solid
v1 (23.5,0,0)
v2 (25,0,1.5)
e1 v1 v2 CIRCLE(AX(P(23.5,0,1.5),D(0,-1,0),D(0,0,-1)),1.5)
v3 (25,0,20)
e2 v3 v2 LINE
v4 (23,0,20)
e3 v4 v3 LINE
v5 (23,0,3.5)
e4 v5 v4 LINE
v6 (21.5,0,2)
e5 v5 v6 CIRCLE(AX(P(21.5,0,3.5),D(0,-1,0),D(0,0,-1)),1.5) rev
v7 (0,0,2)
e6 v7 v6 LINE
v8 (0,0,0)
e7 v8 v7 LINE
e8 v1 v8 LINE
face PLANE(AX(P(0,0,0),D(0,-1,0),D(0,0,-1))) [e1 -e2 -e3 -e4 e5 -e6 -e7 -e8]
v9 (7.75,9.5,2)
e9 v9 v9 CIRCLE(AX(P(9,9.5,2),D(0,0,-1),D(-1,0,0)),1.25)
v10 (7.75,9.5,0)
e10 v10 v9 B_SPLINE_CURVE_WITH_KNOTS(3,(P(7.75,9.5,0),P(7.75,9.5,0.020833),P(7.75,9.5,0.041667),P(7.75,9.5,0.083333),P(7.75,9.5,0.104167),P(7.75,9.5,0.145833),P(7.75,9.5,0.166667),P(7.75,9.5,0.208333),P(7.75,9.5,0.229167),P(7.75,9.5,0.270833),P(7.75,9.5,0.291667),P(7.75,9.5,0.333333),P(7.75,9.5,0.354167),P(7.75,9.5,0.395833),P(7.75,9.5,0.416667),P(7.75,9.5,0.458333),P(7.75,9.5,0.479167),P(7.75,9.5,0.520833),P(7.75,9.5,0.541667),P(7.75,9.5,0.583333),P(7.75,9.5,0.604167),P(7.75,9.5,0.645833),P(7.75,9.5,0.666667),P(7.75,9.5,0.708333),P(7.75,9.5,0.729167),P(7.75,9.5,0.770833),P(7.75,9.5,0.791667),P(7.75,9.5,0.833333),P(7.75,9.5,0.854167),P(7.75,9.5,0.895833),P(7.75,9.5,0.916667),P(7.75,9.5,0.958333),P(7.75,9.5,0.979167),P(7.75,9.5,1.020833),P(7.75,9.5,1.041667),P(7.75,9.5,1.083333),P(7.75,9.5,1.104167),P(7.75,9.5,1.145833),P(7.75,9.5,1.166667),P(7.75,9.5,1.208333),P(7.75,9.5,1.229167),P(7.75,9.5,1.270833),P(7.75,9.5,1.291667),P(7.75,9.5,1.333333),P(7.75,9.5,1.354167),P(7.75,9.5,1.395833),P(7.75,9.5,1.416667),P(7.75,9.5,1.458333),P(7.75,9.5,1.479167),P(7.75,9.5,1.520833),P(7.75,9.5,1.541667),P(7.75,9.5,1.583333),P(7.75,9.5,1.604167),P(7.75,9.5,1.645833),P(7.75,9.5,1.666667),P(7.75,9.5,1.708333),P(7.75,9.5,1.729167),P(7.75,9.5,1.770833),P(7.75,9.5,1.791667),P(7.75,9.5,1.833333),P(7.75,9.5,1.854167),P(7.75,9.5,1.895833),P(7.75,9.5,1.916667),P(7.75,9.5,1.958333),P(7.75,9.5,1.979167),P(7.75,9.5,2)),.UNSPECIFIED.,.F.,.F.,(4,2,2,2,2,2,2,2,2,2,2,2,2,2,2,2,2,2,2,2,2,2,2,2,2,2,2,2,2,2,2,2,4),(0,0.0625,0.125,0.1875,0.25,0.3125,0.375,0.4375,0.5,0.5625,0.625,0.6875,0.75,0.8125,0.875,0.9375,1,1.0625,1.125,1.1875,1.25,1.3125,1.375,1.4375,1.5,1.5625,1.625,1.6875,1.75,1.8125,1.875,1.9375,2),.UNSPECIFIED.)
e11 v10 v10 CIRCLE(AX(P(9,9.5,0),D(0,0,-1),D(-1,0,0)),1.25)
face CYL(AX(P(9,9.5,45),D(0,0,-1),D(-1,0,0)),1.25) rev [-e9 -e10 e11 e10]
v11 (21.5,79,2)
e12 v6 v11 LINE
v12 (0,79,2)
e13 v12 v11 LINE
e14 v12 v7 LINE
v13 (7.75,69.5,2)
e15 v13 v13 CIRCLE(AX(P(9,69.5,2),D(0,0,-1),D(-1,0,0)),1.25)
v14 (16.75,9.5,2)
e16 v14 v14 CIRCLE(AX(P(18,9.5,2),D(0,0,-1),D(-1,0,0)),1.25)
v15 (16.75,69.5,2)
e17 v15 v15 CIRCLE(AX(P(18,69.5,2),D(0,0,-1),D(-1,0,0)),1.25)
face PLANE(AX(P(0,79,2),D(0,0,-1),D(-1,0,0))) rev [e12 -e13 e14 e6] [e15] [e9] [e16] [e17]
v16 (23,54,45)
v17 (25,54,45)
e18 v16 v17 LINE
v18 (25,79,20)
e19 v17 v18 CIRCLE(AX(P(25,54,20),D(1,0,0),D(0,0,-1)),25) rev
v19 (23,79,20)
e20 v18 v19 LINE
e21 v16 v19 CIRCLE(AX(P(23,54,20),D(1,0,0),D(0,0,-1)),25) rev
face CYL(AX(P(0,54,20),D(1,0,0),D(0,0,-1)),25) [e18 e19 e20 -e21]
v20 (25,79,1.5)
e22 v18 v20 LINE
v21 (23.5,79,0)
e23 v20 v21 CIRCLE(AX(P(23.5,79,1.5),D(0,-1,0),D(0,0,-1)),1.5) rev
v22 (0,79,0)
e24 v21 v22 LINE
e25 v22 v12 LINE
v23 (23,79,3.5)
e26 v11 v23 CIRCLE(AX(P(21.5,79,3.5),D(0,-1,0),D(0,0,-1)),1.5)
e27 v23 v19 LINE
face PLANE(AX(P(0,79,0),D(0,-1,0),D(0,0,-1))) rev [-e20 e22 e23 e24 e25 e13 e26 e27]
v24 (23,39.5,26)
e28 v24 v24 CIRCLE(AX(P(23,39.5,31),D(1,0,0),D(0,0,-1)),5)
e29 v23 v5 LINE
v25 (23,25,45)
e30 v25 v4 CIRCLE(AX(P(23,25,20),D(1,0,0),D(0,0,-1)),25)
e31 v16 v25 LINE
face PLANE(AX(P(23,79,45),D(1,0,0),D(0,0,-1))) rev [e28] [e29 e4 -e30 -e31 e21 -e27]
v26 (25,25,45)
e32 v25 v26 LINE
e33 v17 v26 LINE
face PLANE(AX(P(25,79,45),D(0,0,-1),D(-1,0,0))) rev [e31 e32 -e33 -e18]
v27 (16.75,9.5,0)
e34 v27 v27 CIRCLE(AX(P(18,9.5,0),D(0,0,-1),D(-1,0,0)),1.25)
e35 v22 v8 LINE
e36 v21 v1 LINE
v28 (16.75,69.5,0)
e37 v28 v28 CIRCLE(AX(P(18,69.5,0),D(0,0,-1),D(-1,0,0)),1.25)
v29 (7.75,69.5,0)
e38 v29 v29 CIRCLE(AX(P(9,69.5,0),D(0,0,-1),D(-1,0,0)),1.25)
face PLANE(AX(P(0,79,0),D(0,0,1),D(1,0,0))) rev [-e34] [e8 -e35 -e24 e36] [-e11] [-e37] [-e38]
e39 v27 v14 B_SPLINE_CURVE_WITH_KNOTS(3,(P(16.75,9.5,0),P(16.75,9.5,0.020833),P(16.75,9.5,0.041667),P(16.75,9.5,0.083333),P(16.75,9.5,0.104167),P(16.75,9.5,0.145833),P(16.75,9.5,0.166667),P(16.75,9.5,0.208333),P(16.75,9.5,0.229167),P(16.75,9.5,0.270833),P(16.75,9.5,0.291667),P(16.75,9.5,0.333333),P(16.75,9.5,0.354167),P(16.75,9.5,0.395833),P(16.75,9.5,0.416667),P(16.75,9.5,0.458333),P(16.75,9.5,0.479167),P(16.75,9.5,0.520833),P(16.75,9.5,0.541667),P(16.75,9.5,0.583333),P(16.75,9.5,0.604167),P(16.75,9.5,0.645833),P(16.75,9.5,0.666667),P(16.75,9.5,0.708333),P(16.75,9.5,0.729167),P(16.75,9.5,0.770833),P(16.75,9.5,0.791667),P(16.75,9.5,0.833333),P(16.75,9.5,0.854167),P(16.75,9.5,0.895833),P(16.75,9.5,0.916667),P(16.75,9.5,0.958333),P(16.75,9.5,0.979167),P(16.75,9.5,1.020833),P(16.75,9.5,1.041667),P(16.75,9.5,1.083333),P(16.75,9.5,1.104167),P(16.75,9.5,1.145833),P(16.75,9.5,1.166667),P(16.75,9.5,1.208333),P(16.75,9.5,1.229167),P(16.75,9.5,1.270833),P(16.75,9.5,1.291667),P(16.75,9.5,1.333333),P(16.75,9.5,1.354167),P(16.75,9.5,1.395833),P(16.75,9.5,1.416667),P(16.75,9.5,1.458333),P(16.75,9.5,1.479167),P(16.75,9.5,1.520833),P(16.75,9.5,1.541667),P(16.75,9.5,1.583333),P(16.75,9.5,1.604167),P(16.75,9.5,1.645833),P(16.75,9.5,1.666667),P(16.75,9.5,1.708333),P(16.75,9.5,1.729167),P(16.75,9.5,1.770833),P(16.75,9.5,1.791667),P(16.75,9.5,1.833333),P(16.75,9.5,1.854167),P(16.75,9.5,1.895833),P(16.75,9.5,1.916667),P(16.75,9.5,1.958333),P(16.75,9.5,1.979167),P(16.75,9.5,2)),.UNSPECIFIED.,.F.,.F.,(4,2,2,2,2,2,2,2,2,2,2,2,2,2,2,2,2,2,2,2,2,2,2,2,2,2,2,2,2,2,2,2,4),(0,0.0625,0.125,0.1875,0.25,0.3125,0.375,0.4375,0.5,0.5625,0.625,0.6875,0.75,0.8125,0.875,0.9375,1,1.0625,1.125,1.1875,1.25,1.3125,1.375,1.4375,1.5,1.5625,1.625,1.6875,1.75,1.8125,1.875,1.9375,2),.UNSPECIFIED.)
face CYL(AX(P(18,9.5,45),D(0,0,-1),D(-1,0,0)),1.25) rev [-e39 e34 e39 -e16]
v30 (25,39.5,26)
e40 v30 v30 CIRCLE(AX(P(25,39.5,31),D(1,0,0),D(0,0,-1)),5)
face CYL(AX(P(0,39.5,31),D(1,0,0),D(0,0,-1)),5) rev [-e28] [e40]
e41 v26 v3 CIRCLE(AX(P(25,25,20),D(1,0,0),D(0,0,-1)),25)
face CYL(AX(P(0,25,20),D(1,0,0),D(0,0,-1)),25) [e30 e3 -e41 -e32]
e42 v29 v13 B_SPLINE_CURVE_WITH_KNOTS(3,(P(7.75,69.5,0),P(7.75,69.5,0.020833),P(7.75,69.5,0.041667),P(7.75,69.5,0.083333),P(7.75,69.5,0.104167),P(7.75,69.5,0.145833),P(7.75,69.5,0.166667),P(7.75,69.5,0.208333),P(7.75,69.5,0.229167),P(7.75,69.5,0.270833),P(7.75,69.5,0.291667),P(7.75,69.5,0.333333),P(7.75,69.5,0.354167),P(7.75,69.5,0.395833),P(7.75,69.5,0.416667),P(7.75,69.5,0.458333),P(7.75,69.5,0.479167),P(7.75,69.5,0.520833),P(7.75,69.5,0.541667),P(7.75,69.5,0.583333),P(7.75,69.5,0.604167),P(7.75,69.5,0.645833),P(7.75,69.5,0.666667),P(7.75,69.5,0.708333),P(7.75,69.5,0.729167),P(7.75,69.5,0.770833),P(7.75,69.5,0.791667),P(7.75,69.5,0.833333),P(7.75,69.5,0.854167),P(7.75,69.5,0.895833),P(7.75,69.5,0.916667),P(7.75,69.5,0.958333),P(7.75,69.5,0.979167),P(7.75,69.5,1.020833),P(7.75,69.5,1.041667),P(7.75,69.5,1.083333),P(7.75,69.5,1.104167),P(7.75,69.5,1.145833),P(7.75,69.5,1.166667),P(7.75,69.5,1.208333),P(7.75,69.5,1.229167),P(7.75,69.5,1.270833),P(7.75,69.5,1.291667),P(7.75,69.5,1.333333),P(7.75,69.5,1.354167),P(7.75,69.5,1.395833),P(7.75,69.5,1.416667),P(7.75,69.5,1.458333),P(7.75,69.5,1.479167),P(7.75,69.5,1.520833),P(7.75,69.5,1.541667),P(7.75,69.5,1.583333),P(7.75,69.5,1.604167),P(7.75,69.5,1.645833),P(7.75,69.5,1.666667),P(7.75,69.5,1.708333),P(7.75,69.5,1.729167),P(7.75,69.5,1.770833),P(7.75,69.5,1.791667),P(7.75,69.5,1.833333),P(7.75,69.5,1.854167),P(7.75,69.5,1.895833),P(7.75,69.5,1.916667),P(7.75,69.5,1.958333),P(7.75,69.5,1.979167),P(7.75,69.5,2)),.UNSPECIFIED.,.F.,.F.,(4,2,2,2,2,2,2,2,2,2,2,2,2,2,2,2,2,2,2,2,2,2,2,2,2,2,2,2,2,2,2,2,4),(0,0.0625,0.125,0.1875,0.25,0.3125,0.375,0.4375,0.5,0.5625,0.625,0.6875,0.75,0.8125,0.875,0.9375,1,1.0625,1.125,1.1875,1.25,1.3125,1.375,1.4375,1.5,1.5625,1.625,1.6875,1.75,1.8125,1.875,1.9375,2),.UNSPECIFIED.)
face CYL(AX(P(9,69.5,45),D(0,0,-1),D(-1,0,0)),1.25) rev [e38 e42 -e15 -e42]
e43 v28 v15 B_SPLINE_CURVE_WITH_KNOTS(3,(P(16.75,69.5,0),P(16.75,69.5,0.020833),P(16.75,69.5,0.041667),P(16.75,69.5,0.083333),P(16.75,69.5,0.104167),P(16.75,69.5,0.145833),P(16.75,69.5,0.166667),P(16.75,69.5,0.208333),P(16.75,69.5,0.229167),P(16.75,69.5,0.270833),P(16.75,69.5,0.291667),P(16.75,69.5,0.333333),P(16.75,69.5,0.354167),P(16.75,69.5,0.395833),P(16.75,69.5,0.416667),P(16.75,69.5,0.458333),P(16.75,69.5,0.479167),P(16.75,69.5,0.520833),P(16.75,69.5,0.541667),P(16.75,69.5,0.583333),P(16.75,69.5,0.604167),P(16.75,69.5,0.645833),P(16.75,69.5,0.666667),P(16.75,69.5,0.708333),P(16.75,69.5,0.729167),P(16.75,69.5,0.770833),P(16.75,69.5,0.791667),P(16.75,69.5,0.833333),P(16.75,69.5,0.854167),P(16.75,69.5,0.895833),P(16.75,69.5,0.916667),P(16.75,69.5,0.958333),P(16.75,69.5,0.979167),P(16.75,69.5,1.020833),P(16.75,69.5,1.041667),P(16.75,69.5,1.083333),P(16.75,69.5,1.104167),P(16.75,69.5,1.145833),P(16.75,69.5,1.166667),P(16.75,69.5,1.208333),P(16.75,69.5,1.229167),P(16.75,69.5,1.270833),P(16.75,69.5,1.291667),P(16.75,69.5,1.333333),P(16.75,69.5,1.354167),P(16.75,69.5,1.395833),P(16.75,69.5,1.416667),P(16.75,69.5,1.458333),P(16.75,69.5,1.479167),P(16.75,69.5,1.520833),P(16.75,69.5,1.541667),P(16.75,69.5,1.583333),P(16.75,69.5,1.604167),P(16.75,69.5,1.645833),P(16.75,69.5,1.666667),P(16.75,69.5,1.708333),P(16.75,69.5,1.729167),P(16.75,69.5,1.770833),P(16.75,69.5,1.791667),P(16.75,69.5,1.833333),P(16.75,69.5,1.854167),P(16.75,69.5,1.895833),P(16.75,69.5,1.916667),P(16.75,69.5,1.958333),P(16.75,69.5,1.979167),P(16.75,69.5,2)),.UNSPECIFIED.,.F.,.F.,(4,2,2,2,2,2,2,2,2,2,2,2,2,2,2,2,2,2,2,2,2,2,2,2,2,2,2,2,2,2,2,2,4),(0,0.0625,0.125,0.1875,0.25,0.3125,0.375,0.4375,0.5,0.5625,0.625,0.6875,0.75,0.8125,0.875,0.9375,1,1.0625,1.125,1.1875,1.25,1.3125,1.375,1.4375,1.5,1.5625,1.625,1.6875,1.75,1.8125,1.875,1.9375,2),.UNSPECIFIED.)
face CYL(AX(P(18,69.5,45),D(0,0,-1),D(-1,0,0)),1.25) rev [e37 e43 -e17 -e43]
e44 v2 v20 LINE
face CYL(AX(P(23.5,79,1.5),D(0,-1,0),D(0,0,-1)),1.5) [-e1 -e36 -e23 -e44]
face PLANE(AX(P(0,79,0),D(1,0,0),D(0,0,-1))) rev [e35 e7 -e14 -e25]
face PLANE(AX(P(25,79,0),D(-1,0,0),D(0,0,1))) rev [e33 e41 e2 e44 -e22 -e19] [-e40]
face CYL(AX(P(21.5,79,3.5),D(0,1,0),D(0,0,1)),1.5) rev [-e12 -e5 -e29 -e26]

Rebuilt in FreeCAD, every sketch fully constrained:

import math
import FreeCAD as App
import Part
import Sketcher

V = App.Vector


def edges_at(feature, points):
    """Names of the edges that pass closest to the given points."""
    edges = feature.Shape.Edges
    near = lambda p: min(range(len(edges)), key=lambda i: edges[i].distToShape(Part.Vertex(*p))[0])
    return sorted({f"Edge{near(p) + 1}" for p in points})


def add_polygon(sketch, points):
    """Adds a closed chain of lines whose ends are joined by coincident constraints."""
    first, n = sketch.GeometryCount, len(points)
    for a, b in zip(points, points[1:] + points[:1]):
        sketch.addGeometry(Part.LineSegment(App.Vector(*a, 0), App.Vector(*b, 0)), False)
    for i in range(n):
        sketch.addConstraint(Sketcher.Constraint("Coincident", first + i, 2, first + (i + 1) % n, 1))

doc = App.newDocument("Part")
body = doc.addObject("PartDesign::Body", "Body")

sketch1 = body.newObject("Sketcher::SketchObject", "Sketch")
sketch1.AttachmentSupport = (doc.getObject("XZ_Plane"), [""])
sketch1.MapMode = "FlatFace"
add_polygon(sketch1, [(0, 0), (0, 2), (23, 2), (23, 45), (25, 45), (25, 0)])
sketch1.addConstraint([
    Sketcher.Constraint("Vertical", 0),
    Sketcher.Constraint("Horizontal", 1),
    Sketcher.Constraint("Vertical", 2),
    Sketcher.Constraint("Horizontal", 3),
    Sketcher.Constraint("Vertical", 4),
    Sketcher.Constraint("Horizontal", 5),
    Sketcher.Constraint("Coincident", 5, 2, -1, 1),
    Sketcher.Constraint("Equal", 3, 0),
    Sketcher.Constraint("DistanceX", 1, 1, 1, 2, 23.0),
    Sketcher.Constraint("DistanceX", 3, 1, 3, 2, 2.0),
    Sketcher.Constraint("DistanceY", 2, 1, 2, 2, 43.0),
])
pad1 = body.newObject("PartDesign::Pad", "Pad")
pad1.Profile = sketch1
pad1.Length = 79
pad1.Reversed = True

sketch2 = body.newObject("Sketcher::SketchObject", "Sketch001")
sketch2.AttachmentSupport = (doc.getObject("YZ_Plane"), [""])
sketch2.MapMode = "FlatFace"
sketch2.AttachmentOffset = App.Placement(V(0, 0, 25), App.Rotation())
sketch2.addGeometry(Part.Circle(V(40, 31, 0), V(0, 0, 1), 5), False)
sketch2.addConstraint([
    Sketcher.Constraint("Diameter", 0, 10.0),
    Sketcher.Constraint("DistanceY", -1, 1, 0, 3, 31.0),
    Sketcher.Constraint("DistanceX", -1, 1, 0, 3, 39.5),
])
pocket1 = body.newObject("PartDesign::Pocket", "Pocket")
pocket1.Profile = sketch2
pocket1.Type = "ThroughAll"

sketch3 = body.newObject("Sketcher::SketchObject", "Sketch002")
sketch3.AttachmentSupport = (doc.getObject("YZ_Plane"), [""])
sketch3.MapMode = "FlatFace"
sketch3.AttachmentOffset = App.Placement(V(0, 0, 25), App.Rotation())
sketch3.addGeometry([
    Part.LineSegment(V(54, 56, 0), V(54, 45, 0)),
    Part.ArcOfCircle(Part.Circle(V(54, 20, 0), V(0, 0, 1), 25), math.radians(0), math.radians(90)),
    Part.LineSegment(V(79, 20, 0), V(83.6, 20, 0)),
    Part.LineSegment(V(83.6, 20, 0), V(83.6, 56, 0)),
    Part.LineSegment(V(83.6, 56, 0), V(54, 56, 0)),
    Part.LineSegment(V(25, 45, 0), V(25, 50.6, 0)),
    Part.LineSegment(V(25, 50.6, 0), V(-10.4, 50.6, 0)),
    Part.LineSegment(V(-10.4, 50.6, 0), V(-10.4, 20, 0)),
    Part.LineSegment(V(-10.4, 20, 0), V(0, 20, 0)),
    Part.ArcOfCircle(Part.Circle(V(25, 20, 0), V(0, 0, 1), 25), math.radians(90), math.radians(180)),
], False)
sketch3.addConstraint([
    Sketcher.Constraint("Coincident", 0, 2, 1, 2),
    Sketcher.Constraint("Coincident", 1, 1, 2, 1),
    Sketcher.Constraint("Coincident", 2, 2, 3, 1),
    Sketcher.Constraint("Coincident", 3, 2, 4, 1),
    Sketcher.Constraint("Coincident", 4, 2, 0, 1),
    Sketcher.Constraint("Coincident", 5, 2, 6, 1),
    Sketcher.Constraint("Coincident", 6, 2, 7, 1),
    Sketcher.Constraint("Coincident", 7, 2, 8, 1),
    Sketcher.Constraint("Coincident", 8, 2, 9, 2),
    Sketcher.Constraint("Coincident", 9, 1, 5, 1),
    Sketcher.Constraint("Vertical", 0),
    Sketcher.Constraint("Horizontal", 2),
    Sketcher.Constraint("Vertical", 3),
    Sketcher.Constraint("Horizontal", 4),
    Sketcher.Constraint("Vertical", 5),
    Sketcher.Constraint("Horizontal", 6),
    Sketcher.Constraint("Vertical", 7),
    Sketcher.Constraint("Horizontal", 8),
    Sketcher.Constraint("Equal", 1, 9),
    Sketcher.Constraint("PointOnObject", 8, 2, -2),
    Sketcher.Constraint("Horizontal", 1, 3, 9, 3),
    Sketcher.Constraint("Horizontal", 9, 3, 1, 1),
    Sketcher.Constraint("Horizontal", 2, 2, 7, 2),
    Sketcher.Constraint("Vertical", 1, 3, 0, 2),
    Sketcher.Constraint("Vertical", 9, 3, 5, 2),
    Sketcher.Constraint("Radius", 1, 25.0),
    Sketcher.Constraint("DistanceX", -1, 1, 1, 3, 54.0),
    Sketcher.Constraint("DistanceY", -1, 1, 1, 3, 20.0),
    Sketcher.Constraint("DistanceX", 2, 1, 2, 2, 4.56903),
    Sketcher.Constraint("DistanceX", 6, 2, 6, 1, 35.402654),
    Sketcher.Constraint("DistanceY", 0, 2, 0, 1, 11.029718),
    Sketcher.Constraint("DistanceY", 5, 1, 5, 2, 5.640365),
])
pocket2 = body.newObject("PartDesign::Pocket", "Pocket001")
pocket2.Profile = sketch3
pocket2.Type = "ThroughAll"
doc.recompute()

fillet = body.newObject("PartDesign::Fillet", "Fillet")
fillet.Base = (pocket2, edges_at(pocket2, [(25, 39.5, 0), (23, 39.5, 2)]))
fillet.Radius = 1.5

sketch4 = body.newObject("Sketcher::SketchObject", "Sketch003")
sketch4.AttachmentSupport = (doc.getObject("XY_Plane"), [""])
sketch4.MapMode = "FlatFace"
sketch4.addGeometry([
    Part.Circle(V(18, 69.5, 0), V(0, 0, 1), 1.2),
    Part.Circle(V(9, 69.5, 0), V(0, 0, 1), 1.2),
    Part.Circle(V(9, 9.5, 0), V(0, 0, 1), 1.2),
    Part.Circle(V(18, 9.5, 0), V(0, 0, 1), 1.2),
], False)
sketch4.addConstraint([
    Sketcher.Constraint("Equal", 0, 1),
    Sketcher.Constraint("Equal", 1, 2),
    Sketcher.Constraint("Equal", 2, 3),
    Sketcher.Constraint("Horizontal", 0, 3, 1, 3),
    Sketcher.Constraint("Horizontal", 2, 3, 3, 3),
    Sketcher.Constraint("Vertical", 1, 3, 2, 3),
    Sketcher.Constraint("Vertical", 0, 3, 3, 3),
    Sketcher.Constraint("Diameter", 0, 2.5),
    Sketcher.Constraint("DistanceX", -1, 1, 0, 3, 18.0),
    Sketcher.Constraint("DistanceX", -1, 1, 1, 3, 9.0),
    Sketcher.Constraint("DistanceY", 2, 3, 1, 3, 60.0),
    Sketcher.Constraint("DistanceY", -1, 1, 0, 3, 69.5),
])
pocket3 = body.newObject("PartDesign::Pocket", "Pocket002")
pocket3.Profile = sketch4
pocket3.Type = "ThroughAll"
pocket3.Reversed = True

doc.recompute()
